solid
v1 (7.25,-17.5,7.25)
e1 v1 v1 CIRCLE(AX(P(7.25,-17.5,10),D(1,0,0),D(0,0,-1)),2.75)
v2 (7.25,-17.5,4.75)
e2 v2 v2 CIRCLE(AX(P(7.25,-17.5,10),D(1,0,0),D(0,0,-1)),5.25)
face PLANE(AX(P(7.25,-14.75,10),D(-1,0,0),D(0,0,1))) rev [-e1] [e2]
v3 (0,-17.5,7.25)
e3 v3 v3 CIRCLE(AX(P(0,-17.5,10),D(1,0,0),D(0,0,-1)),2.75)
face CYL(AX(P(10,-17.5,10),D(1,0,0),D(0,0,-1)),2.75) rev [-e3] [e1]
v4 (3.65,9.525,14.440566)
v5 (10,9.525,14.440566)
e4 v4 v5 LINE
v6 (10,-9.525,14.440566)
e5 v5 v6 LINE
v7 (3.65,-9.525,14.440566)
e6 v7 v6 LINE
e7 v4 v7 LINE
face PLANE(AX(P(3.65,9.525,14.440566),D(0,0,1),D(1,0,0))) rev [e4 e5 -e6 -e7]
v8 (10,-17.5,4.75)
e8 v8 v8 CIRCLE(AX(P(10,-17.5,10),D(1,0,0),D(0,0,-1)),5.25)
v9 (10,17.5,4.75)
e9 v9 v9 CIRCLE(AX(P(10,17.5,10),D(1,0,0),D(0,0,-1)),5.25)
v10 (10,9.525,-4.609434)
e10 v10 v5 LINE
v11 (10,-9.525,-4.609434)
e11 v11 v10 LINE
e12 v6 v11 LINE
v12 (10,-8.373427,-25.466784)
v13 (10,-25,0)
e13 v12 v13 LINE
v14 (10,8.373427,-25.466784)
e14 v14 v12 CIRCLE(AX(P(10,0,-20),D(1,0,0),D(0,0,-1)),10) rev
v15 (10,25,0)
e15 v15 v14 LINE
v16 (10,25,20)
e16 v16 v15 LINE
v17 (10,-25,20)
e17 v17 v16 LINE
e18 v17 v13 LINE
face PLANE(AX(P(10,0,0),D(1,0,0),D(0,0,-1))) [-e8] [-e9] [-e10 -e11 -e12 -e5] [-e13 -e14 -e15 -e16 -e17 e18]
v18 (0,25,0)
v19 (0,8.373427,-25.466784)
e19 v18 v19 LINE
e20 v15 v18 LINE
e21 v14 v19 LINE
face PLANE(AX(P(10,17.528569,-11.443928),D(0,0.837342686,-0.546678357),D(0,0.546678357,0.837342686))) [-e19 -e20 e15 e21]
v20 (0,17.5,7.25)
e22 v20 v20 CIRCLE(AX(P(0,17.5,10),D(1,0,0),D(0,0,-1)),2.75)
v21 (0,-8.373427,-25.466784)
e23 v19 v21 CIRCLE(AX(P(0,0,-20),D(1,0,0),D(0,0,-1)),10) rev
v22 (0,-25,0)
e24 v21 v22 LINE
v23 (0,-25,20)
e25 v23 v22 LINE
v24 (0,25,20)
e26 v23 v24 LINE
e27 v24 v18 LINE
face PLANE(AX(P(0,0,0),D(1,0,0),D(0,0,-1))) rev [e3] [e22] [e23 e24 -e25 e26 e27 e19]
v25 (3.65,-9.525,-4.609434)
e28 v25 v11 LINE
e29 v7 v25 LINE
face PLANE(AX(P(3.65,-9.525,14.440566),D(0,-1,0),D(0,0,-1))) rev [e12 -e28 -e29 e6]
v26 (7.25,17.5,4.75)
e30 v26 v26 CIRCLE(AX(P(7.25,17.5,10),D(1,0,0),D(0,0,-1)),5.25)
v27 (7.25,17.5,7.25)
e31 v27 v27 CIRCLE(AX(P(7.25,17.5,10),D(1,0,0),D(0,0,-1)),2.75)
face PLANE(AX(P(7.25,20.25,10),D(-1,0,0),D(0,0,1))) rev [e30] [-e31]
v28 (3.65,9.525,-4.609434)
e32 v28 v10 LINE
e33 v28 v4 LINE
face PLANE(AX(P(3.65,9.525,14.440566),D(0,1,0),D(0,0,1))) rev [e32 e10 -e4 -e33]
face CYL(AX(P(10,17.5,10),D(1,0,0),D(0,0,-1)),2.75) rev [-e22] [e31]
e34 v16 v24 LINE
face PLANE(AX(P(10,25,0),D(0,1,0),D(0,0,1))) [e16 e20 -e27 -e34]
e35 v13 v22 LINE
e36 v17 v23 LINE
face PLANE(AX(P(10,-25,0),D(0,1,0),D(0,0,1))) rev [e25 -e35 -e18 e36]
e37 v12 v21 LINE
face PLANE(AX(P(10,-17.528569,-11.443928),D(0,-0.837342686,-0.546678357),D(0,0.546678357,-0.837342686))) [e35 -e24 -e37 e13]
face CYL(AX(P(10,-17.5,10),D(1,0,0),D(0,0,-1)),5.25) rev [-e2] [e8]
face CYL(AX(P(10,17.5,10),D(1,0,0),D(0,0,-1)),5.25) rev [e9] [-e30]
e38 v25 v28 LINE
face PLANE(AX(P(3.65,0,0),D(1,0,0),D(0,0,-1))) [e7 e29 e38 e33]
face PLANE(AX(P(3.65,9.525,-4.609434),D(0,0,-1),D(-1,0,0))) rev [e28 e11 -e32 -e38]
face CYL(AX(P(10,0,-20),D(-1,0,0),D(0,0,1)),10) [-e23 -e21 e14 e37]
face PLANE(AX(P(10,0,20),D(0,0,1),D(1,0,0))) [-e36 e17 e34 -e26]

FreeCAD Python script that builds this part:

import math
import FreeCAD as App
import Part
import Sketcher

doc = App.newDocument("Part")
body = doc.addObject("PartDesign::Body", "Body")

# Sketch on YZ plane
sketch1 = body.newObject("Sketcher::SketchObject", "Sketch")
sketch1.AttachmentSupport = (doc.getObject("YZ_Plane"), [""])
sketch1.MapMode = "FlatFace"
sketch1.addGeometry(Part.LineSegment(App.Vector(25, 20, 0), App.Vector(-25, 20, 0)), False)
sketch1.addGeometry(Part.LineSegment(App.Vector(-25, 20, 0), App.Vector(-25, 0, 0)), False)
sketch1.addGeometry(Part.LineSegment(App.Vector(-25, 0, 0), App.Vector(-8.373427, -25.466784, 0)), False)
sketch1.addGeometry(Part.ArcOfCircle(Part.Circle(App.Vector(0, -20, 0), App.Vector(0, 0, 1), 10), math.radians(-146.860569), math.radians(-33.139431)), False)
sketch1.addGeometry(Part.LineSegment(App.Vector(8.373427, -25.466784, 0), App.Vector(25, 0, 0)), False)
sketch1.addGeometry(Part.LineSegment(App.Vector(25, 0, 0), App.Vector(25, 20, 0)), False)
sketch1.addConstraint(Sketcher.Constraint("Coincident", 0, 2, 1, 1))
sketch1.addConstraint(Sketcher.Constraint("Coincident", 1, 2, 2, 1))
sketch1.addConstraint(Sketcher.Constraint("Tangent", 2, 2, 3, 1))
sketch1.addConstraint(Sketcher.Constraint("Tangent", 3, 2, 4, 1))
sketch1.addConstraint(Sketcher.Constraint("Coincident", 4, 2, 5, 1))
sketch1.addConstraint(Sketcher.Constraint("Coincident", 5, 2, 0, 1))
sketch1.addConstraint(Sketcher.Constraint("Horizontal", 0))
sketch1.addConstraint(Sketcher.Constraint("Vertical", 1))
sketch1.addConstraint(Sketcher.Constraint("Vertical", 5))
sketch1.addConstraint(Sketcher.Constraint("Symmetric", 1, 2, 4, 2, -1, 1))
sketch1.addConstraint(Sketcher.Constraint("Symmetric", 2, 2, 3, 2, -2))
sketch1.addConstraint(Sketcher.Constraint("Radius", 3, 10.0))
sketch1.addConstraint(Sketcher.Constraint("DistanceX", 0, 2, 0, 1, 50.0))
sketch1.addConstraint(Sketcher.Constraint("DistanceY", 1, 2, 1, 1, 20.0))
sketch1.addConstraint(Sketcher.Constraint("DistanceY", 3, 3, -1, 1, 20.0))
pad1 = body.newObject("PartDesign::Pad", "Pad")
pad1.Profile = sketch1
pad1.Length = 10

# Sketch on YZ plane
sketch2 = body.newObject("Sketcher::SketchObject", "Sketch001")
sketch2.AttachmentSupport = (doc.getObject("YZ_Plane"), [""])
sketch2.MapMode = "FlatFace"
sketch2.AttachmentOffset = App.Placement(App.Vector(0, 0, 10), App.Rotation())
sketch2.addGeometry(Part.Circle(App.Vector(17.5, 10, 0), App.Vector(0, 0, 1), 2.75), False)
sketch2.addGeometry(Part.Circle(App.Vector(-17.5, 10, 0), App.Vector(0, 0, 1), 2.75), False)
sketch2.addConstraint(Sketcher.Constraint("Equal", 0, 1))
sketch2.addConstraint(Sketcher.Constraint("Symmetric", 0, 3, 1, 3, -2))
sketch2.addConstraint(Sketcher.Constraint("Diameter", 0, 5.5))
sketch2.addConstraint(Sketcher.Constraint("DistanceY", -1, 1, 0, 3, 10.0))
sketch2.addConstraint(Sketcher.Constraint("DistanceX", 1, 3, 0, 3, 35.0))
doc.recompute()
hole = body.newObject("PartDesign::Hole", "Hole")
hole.Profile = sketch2
hole.ThreadType = "None"
hole.Diameter = 5.5
hole.DepthType = "ThroughAll"
hole.HoleCutType = "Counterbore"
hole.HoleCutDiameter = 10.5
hole.HoleCutDepth = 2.75

# Sketch on YZ plane
sketch3 = body.newObject("Sketcher::SketchObject", "Sketch002")
sketch3.AttachmentSupport = (doc.getObject("YZ_Plane"), [""])
sketch3.MapMode = "FlatFace"
sketch3.AttachmentOffset = App.Placement(App.Vector(0, 0, 10), App.Rotation())
sketch3.addGeometry(Part.LineSegment(App.Vector(9.525, 14.440566, 0), App.Vector(-9.525, 14.440566, 0)), False)
sketch3.addGeometry(Part.LineSegment(App.Vector(-9.525, 14.440566, 0), App.Vector(-9.525, -4.609434, 0)), False)
sketch3.addGeometry(Part.LineSegment(App.Vector(-9.525, -4.609434, 0), App.Vector(9.525, -4.609434, 0)), False)
sketch3.addGeometry(Part.LineSegment(App.Vector(9.525, -4.609434, 0), App.Vector(9.525, 14.440566, 0)), False)
sketch3.addConstraint(Sketcher.Constraint("Coincident", 0, 2, 1, 1))
sketch3.addConstraint(Sketcher.Constraint("Coincident", 1, 2, 2, 1))
sketch3.addConstraint(Sketcher.Constraint("Coincident", 2, 2, 3, 1))
sketch3.addConstraint(Sketcher.Constraint("Coincident", 3, 2, 0, 1))
sketch3.addConstraint(Sketcher.Constraint("Horizontal", 0))
sketch3.addConstraint(Sketcher.Constraint("Vertical", 1))
sketch3.addConstraint(Sketcher.Constraint("Horizontal", 2))
sketch3.addConstraint(Sketcher.Constraint("Vertical", 3))
sketch3.addConstraint(Sketcher.Constraint("Equal", 2, 1))
sketch3.addConstraint(Sketcher.Constraint("DistanceX", 0, 2, 0, 1, 19.05))
sketch3.addConstraint(Sketcher.Constraint("DistanceX", 0, 2, -1, 1, 9.525))
sketch3.addConstraint(Sketcher.Constraint("DistanceY", -1, 1, 0, 2, 14.440566))
pocket1 = body.newObject("PartDesign::Pocket", "Pocket")
pocket1.Profile = sketch3
pocket1.Length = 6.35

doc.recompute()
